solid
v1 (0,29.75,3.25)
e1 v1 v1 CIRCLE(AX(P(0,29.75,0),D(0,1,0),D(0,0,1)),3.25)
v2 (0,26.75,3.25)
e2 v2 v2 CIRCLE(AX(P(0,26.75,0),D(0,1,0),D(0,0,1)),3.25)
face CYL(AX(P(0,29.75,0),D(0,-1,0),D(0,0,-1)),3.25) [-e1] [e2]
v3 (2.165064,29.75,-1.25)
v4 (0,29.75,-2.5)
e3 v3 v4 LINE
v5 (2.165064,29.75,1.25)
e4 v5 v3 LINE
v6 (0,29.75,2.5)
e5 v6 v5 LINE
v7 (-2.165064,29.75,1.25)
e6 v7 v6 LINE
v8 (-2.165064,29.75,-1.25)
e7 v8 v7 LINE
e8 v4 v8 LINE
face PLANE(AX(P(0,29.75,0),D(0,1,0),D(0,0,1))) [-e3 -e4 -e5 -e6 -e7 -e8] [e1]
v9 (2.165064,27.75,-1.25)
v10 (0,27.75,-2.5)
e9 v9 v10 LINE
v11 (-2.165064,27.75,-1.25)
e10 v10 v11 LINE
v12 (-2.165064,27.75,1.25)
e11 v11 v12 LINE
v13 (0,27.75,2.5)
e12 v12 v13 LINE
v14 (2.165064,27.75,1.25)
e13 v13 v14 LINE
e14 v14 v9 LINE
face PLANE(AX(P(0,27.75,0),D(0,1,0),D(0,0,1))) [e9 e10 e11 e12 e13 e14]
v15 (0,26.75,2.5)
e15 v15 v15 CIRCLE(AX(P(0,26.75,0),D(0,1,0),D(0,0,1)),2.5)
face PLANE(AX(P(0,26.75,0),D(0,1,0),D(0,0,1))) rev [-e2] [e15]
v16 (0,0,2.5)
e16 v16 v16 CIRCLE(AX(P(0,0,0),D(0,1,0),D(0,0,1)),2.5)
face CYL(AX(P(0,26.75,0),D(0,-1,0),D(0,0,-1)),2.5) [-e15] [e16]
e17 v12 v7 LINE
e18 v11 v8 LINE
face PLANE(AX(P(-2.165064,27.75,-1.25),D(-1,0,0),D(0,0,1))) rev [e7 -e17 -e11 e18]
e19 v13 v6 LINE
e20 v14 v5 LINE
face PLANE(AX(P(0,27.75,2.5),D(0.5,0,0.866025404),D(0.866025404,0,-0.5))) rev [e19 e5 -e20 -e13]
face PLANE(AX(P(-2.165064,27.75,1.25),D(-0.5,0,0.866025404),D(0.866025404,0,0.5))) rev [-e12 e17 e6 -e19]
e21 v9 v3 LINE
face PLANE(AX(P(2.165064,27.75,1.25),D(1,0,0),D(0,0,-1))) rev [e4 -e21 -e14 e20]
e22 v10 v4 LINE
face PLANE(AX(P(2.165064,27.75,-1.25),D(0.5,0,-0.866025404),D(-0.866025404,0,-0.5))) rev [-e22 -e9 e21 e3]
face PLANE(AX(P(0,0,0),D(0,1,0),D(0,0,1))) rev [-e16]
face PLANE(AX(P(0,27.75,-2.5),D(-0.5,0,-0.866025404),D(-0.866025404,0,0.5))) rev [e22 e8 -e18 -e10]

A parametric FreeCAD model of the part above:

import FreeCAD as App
import Part
import Sketcher
Q = App.Units.Quantity


def add_polygon(sketch, points):
    """Adds a closed chain of lines whose ends are joined by coincident constraints."""
    first, n = sketch.GeometryCount, len(points)
    for a, b in zip(points, points[1:] + points[:1]):
        sketch.addGeometry(Part.LineSegment(App.Vector(*a, 0), App.Vector(*b, 0)), False)
    for i in range(n):
        sketch.addConstraint(Sketcher.Constraint("Coincident", first + i, 2, first + (i + 1) % n, 1))

doc = App.newDocument("Part")
body = doc.addObject("PartDesign::Body", "Body")

sketch1 = body.newObject("Sketcher::SketchObject", "Sketch")
sketch1.AttachmentSupport = (doc.getObject("XZ_Plane"), [""])
sketch1.MapMode = "FlatFace"
sketch1.addGeometry(Part.Circle(App.Vector(0, 0, 0), App.Vector(0, 0, 1), 2.5), False)
sketch1.addConstraint(Sketcher.Constraint("Coincident", 0, 3, -1, 1))
sketch1.addConstraint(Sketcher.Constraint("Diameter", 0, Q("5 mm")))
pad1 = body.newObject("PartDesign::Pad", "Pad")
pad1.Profile = sketch1
pad1.Length = 26.75
pad1.Reversed = True

sketch2 = body.newObject("Sketcher::SketchObject", "Sketch001")
sketch2.AttachmentSupport = (doc.getObject("XZ_Plane"), [""])
sketch2.MapMode = "FlatFace"
sketch2.AttachmentOffset = App.Placement(App.Vector(0, 0, -26.75), App.Rotation())
sketch2.addGeometry(Part.Circle(App.Vector(0, 0, 0), App.Vector(0, 0, 1), 3.2), False)
sketch2.addConstraint(Sketcher.Constraint("Coincident", 0, 3, -1, 1))
sketch2.addConstraint(Sketcher.Constraint("Diameter", 0, Q("6.5 mm")))
pad2 = body.newObject("PartDesign::Pad", "Pad001")
pad2.Profile = sketch2
pad2.Length = 3
pad2.Reversed = True

sketch3 = body.newObject("Sketcher::SketchObject", "Sketch002")
sketch3.AttachmentSupport = (doc.getObject("XZ_Plane"), [""])
sketch3.MapMode = "FlatFace"
sketch3.AttachmentOffset = App.Placement(App.Vector(0, 0, -29.75), App.Rotation())
add_polygon(sketch3, [(0, -2.5), (-2.2, -1.2), (-2.2, 1.2), (0, 2.5), (2.2, 1.2), (2.2, -1.2)])
sketch3.addConstraint(Sketcher.Constraint("Vertical", 1))
sketch3.addConstraint(Sketcher.Constraint("Vertical", 4))
sketch3.addConstraint(Sketcher.Constraint("Symmetric", 0, 2, 3, 2, -1, 1))
sketch3.addConstraint(Sketcher.Constraint("Symmetric", 2, 2, 5, 2, -1, 1))
sketch3.addConstraint(Sketcher.Constraint("PointOnObject", 2, 2, -2))
sketch3.addConstraint(Sketcher.Constraint("Parallel", 2, 5))
sketch3.addConstraint(Sketcher.Constraint("Horizontal", 1, 2, 3, 2))
sketch3.addConstraint(Sketcher.Constraint("Angle", 0, Q("150 deg")))
sketch3.addConstraint(Sketcher.Constraint("DistanceY", 1, 1, 1, 2, Q("2.5 mm")))
sketch3.addConstraint(Sketcher.Constraint("DistanceY", 5, 2, 2, 2, Q("5 mm")))
pocket1 = body.newObject("PartDesign::Pocket", "Pocket")
pocket1.Profile = sketch3
pocket1.Length = 2
pocket1.Reversed = True

doc.recompute()
